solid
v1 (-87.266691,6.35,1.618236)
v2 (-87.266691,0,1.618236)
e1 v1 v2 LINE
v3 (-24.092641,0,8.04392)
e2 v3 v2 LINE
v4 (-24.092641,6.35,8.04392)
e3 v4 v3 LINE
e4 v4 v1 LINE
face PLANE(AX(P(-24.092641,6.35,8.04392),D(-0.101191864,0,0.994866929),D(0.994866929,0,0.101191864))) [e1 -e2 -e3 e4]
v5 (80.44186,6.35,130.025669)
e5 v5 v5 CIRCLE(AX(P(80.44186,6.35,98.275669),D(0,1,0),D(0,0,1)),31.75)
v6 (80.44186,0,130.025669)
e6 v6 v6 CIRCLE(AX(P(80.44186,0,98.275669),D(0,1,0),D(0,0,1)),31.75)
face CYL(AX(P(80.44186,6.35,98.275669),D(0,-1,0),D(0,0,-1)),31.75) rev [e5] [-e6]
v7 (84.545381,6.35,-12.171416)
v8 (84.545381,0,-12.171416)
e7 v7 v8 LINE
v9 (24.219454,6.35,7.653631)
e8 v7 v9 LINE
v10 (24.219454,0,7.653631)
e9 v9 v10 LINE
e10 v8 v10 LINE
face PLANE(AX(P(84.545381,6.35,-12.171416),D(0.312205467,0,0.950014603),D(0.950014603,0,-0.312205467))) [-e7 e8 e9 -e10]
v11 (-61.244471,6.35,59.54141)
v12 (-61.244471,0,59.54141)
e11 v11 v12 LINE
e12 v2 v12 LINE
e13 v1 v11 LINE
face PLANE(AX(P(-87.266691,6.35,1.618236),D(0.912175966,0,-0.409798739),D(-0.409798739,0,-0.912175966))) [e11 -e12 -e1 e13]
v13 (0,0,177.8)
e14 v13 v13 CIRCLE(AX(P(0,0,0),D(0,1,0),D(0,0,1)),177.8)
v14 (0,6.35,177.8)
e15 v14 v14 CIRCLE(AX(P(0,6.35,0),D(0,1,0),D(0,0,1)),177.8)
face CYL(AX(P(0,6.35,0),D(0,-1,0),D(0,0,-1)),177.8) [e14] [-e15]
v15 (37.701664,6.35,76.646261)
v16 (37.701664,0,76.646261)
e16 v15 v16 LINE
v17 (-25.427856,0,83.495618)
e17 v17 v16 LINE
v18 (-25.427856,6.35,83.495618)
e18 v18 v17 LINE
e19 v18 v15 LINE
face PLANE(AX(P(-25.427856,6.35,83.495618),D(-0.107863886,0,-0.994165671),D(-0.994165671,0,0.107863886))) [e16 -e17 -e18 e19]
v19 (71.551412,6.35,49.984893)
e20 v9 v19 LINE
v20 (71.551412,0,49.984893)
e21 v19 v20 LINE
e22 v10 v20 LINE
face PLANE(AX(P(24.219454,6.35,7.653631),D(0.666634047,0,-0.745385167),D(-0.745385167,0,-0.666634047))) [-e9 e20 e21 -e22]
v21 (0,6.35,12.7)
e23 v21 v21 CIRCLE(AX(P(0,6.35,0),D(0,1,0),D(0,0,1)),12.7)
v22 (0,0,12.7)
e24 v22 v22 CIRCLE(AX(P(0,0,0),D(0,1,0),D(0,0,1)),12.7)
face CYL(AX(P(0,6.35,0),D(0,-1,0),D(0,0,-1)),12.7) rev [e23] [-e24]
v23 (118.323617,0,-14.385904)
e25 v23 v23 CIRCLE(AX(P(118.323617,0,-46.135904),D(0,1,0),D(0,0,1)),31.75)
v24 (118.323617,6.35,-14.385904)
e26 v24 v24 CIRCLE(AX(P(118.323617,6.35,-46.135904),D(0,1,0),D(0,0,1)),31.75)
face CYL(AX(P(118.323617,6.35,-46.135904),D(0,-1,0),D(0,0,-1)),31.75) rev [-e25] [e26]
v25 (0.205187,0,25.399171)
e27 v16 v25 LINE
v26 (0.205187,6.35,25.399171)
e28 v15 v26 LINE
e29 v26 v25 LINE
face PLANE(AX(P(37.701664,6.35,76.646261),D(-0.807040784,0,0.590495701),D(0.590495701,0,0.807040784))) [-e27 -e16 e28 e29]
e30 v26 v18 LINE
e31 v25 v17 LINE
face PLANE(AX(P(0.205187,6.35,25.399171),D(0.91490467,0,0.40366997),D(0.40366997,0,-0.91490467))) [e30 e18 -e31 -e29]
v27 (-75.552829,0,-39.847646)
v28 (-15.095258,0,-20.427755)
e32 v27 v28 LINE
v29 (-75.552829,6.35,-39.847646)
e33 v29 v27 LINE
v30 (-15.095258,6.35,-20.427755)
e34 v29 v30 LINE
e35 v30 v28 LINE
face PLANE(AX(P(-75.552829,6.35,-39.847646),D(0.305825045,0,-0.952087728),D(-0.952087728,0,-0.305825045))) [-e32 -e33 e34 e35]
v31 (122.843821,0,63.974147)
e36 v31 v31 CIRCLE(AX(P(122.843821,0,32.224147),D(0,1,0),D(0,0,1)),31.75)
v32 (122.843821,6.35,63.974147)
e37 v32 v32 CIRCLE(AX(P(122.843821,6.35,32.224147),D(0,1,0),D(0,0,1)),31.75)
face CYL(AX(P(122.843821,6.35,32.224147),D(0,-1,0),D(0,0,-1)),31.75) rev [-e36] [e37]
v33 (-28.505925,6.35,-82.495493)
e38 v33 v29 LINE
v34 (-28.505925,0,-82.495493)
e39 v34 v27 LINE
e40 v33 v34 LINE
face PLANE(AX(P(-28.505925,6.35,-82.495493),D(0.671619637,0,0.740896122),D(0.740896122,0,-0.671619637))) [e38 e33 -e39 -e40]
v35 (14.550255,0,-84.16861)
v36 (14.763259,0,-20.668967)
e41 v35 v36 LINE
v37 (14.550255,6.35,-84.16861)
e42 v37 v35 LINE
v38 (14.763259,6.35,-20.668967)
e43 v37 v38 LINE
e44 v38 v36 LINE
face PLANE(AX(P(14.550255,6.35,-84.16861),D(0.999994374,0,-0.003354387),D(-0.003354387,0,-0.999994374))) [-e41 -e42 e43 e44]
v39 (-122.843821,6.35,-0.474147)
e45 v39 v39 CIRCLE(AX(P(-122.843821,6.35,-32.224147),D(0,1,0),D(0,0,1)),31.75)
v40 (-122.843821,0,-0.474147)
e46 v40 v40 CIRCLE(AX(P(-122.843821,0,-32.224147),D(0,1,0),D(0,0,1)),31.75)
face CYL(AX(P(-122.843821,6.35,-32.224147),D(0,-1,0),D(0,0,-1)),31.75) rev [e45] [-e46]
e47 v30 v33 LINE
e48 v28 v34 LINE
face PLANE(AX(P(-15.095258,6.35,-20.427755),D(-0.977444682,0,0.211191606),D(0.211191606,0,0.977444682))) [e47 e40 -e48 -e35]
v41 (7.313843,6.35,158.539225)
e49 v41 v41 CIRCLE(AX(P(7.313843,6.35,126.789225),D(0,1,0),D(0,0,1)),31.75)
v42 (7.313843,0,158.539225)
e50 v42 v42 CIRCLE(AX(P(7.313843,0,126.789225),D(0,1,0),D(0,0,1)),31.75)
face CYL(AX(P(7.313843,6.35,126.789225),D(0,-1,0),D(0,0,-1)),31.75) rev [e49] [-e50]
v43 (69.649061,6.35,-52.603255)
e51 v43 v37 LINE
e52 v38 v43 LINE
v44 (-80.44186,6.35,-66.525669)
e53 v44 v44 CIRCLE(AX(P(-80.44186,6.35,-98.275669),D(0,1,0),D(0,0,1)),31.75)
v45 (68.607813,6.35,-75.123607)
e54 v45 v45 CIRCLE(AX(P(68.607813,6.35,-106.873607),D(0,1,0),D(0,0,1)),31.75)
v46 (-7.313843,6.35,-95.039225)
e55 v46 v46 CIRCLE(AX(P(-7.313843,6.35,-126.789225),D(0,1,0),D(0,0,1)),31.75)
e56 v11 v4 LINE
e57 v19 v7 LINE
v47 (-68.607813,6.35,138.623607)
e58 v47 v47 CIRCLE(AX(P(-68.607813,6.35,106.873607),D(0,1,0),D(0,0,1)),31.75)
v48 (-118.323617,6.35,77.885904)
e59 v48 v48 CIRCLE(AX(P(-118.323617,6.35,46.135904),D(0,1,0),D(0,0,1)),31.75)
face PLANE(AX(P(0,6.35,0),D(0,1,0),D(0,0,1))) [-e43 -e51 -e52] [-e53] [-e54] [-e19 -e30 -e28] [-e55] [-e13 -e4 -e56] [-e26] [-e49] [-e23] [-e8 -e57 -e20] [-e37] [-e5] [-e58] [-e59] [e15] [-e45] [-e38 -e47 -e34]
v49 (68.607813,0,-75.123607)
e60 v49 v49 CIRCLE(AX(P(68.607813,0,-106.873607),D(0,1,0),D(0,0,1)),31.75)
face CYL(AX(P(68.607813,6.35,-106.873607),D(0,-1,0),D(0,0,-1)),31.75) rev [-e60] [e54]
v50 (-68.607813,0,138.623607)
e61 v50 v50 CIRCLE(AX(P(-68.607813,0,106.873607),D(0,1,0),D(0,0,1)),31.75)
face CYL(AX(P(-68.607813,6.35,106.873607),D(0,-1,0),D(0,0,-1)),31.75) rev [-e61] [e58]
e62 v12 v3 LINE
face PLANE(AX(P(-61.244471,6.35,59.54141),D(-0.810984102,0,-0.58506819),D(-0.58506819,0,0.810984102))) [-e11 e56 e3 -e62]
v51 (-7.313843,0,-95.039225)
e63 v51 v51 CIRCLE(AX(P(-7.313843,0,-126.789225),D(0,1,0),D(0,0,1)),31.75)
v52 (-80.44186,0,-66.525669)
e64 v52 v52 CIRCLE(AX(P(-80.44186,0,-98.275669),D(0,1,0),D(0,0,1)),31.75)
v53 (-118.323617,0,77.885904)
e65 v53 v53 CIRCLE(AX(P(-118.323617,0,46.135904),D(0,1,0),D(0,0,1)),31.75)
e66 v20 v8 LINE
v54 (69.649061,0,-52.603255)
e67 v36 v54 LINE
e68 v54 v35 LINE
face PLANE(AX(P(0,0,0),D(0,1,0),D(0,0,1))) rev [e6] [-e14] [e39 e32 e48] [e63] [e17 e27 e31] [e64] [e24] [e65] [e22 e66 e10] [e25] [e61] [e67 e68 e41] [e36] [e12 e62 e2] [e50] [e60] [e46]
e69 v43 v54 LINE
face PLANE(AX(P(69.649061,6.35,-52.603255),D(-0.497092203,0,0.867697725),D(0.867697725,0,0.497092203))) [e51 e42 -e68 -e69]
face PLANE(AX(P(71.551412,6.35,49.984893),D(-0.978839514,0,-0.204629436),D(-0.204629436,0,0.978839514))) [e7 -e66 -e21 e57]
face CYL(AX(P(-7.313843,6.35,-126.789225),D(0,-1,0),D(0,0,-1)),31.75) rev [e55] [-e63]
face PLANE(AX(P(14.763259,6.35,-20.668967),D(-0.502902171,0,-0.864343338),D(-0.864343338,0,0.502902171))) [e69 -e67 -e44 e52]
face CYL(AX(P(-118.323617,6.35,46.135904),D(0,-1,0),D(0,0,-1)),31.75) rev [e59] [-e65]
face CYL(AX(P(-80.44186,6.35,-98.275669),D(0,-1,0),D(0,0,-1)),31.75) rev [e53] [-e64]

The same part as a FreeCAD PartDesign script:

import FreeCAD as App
import Part
import Sketcher

V = App.Vector
Q = App.Units.Quantity


def add_polygon(sketch, points):
    """Adds a closed chain of lines whose ends are joined by coincident constraints."""
    first, n = sketch.GeometryCount, len(points)
    for a, b in zip(points, points[1:] + points[:1]):
        sketch.addGeometry(Part.LineSegment(App.Vector(*a, 0), App.Vector(*b, 0)), False)
    for i in range(n):
        sketch.addConstraint(Sketcher.Constraint("Coincident", first + i, 2, first + (i + 1) % n, 1))

doc = App.newDocument("Part")
body = doc.addObject("PartDesign::Body", "Body")

# Sketch on XZ plane
sketch1 = doc.addObject("Sketcher::SketchObject", "Sketch")
body.addObject(sketch1)
sketch1.AttachmentSupport = (doc.XZ_Plane, [""])
sketch1.MapMode = "FlatFace"
sketch1.addGeometry(Part.Circle(V(0, 0, 0), V(0, 0, 1), 178), False)  # 0
sketch1.addGeometry(Part.Circle(V(-80, -98, 0), V(0, 0, 1), 32), False)  # 1
sketch1.addGeometry(Part.Circle(V(-123, -32, 0), V(0, 0, 1), 32), False)  # 2
sketch1.addGeometry(Part.Circle(V(-7, -127, 0), V(0, 0, 1), 32), False)  # 3
add_polygon(sketch1, [(-15, -20), (-76, -40), (-29, -82)])  # lines 4-6
sketch1.addGeometry(Part.Circle(V(-118, 46, 0), V(0, 0, 1), 32), False)  # 7
add_polygon(sketch1, [(-24, 8), (-61, 60), (-87, 2)])  # lines 8-10
sketch1.addGeometry(Part.Circle(V(-69, 107, 0), V(0, 0, 1), 32), False)  # 11
sketch1.addGeometry(Part.Circle(V(69, -107, 0), V(0, 0, 1), 32), False)  # 12
sketch1.addGeometry(Part.Circle(V(0, 0, 0), V(0, 0, 1), 13), False)  # 13
add_polygon(sketch1, [(15, -21), (15, -84), (70, -53)])  # lines 14-16
sketch1.addGeometry(Part.Circle(V(118, -46, 0), V(0, 0, 1), 32), False)  # 17
add_polygon(sketch1, [(0, 25), (38, 77), (-25, 83)])  # lines 18-20
add_polygon(sketch1, [(24, 8), (85, -12), (72, 50)])  # lines 21-23
sketch1.addGeometry(Part.Circle(V(7, 127, 0), V(0, 0, 1), 32), False)  # 24
sketch1.addGeometry(Part.Circle(V(123, 32, 0), V(0, 0, 1), 32), False)  # 25
sketch1.addGeometry(Part.Circle(V(80, 98, 0), V(0, 0, 1), 32), False)  # 26
sketch1.addConstraint([
    Sketcher.Constraint("Coincident", 0, 3, -1, 1),
    Sketcher.Constraint("Coincident", 13, 3, -1, 1),
    Sketcher.Constraint("Equal", 1, 2),
    Sketcher.Constraint("Equal", 2, 3),
    Sketcher.Constraint("Equal", 3, 7),
    Sketcher.Constraint("Equal", 7, 11),
    Sketcher.Constraint("Equal", 11, 12),
    Sketcher.Constraint("Equal", 12, 17),
    Sketcher.Constraint("Equal", 17, 24),
    Sketcher.Constraint("Equal", 24, 25),
    Sketcher.Constraint("Equal", 25, 26),
    Sketcher.Constraint("Symmetric", 11, 3, 12, 3, -1, 1),
    Sketcher.Constraint("Symmetric", 7, 3, 17, 3, -1, 1),
    Sketcher.Constraint("Symmetric", 3, 3, 24, 3, -1, 1),
    Sketcher.Constraint("Symmetric", 2, 3, 25, 3, -1, 1),
    Sketcher.Constraint("Symmetric", 1, 3, 26, 3, -1, 1),
    Sketcher.Constraint("Equal", 4, 5),
    Sketcher.Constraint("Equal", 5, 6),
    Sketcher.Constraint("Equal", 6, 8),
    Sketcher.Constraint("Equal", 8, 9),
    Sketcher.Constraint("Equal", 9, 10),
    Sketcher.Constraint("Equal", 10, 14),
    Sketcher.Constraint("Equal", 14, 15),
    Sketcher.Constraint("Equal", 15, 16),
    Sketcher.Constraint("Equal", 16, 18),
    Sketcher.Constraint("Equal", 18, 19),
    Sketcher.Constraint("Equal", 19, 20),
    Sketcher.Constraint("Equal", 20, 21),
    Sketcher.Constraint("Equal", 21, 22),
    Sketcher.Constraint("Equal", 22, 23),
    Sketcher.Constraint("Diameter", 0, Q("14 in")),
    Sketcher.Constraint("Diameter", 13, Q("1 in")),
    Sketcher.Constraint("Diameter", 1, Q("2.5 in")),
    Sketcher.Constraint("Distance", 4, Q("2.5 in")),
    Sketcher.Constraint("DistanceY", 4, 2, 2, 3, Q("7.623499 mm")),
    Sketcher.Constraint("DistanceX", 3, 3, 14, 2, Q("21.864098 mm")),
    Sketcher.Constraint("DistanceX", 10, 2, 16, 2, Q("38.8559 mm")),
    Sketcher.Constraint("DistanceX", 19, 2, 24, 3, Q("32.741699 mm")),
    Sketcher.Constraint("DistanceY", 16, 2, 23, 2, Q("28.322598 mm")),
    Sketcher.Constraint("DistanceX", 1, 3, -1, 1, Q("80.44186 mm")),
    Sketcher.Constraint("DistanceY", 1, 3, -1, 1, Q("98.275669 mm")),
    Sketcher.Constraint("DistanceX", 2, 3, -1, 1, Q("122.843821 mm")),
    Sketcher.Constraint("DistanceX", 4, 2, -1, 1, Q("75.552829 mm")),
    Sketcher.Constraint("DistanceX", 8, 2, -1, 1, Q("61.244471 mm")),
    Sketcher.Constraint("DistanceY", -1, 1, 8, 2, Q("59.54141 mm")),
    Sketcher.Constraint("DistanceX", 9, 2, -1, 1, Q("87.266691 mm")),
    Sketcher.Constraint("DistanceY", 14, 2, -1, 1, Q("84.16861 mm")),
    Sketcher.Constraint("DistanceX", -1, 1, 15, 2, Q("69.649061 mm")),
    Sketcher.Constraint("DistanceY", -1, 1, 18, 2, Q("76.646261 mm")),
    Sketcher.Constraint("DistanceY", -1, 1, 20, 2, Q("25.399171 mm")),
    Sketcher.Constraint("DistanceX", -1, 1, 21, 2, Q("84.545381 mm")),
    Sketcher.Constraint("DistanceX", -1, 1, 22, 2, Q("71.551412 mm")),
    Sketcher.Constraint("DistanceY", 1, 3, 2, 3, Q("66.051522 mm")),
    Sketcher.Constraint("DistanceY", 3, 3, 2, 3, Q("94.565078 mm")),
    Sketcher.Constraint("DistanceY", 2, 3, 7, 3, Q("78.360051 mm")),
    Sketcher.Constraint("DistanceX", 11, 3, 3, 3, Q("61.29397 mm")),
    Sketcher.Constraint("DistanceY", 3, 3, 12, 3, Q("19.915618 mm")),
    Sketcher.Constraint("DistanceX", 7, 3, 12, 3, Q("186.931431 mm")),
    Sketcher.Constraint("DistanceX", 5, 2, 3, 3, Q("21.192082 mm")),
])
pad1 = doc.addObject("PartDesign::Pad", "Pad")
body.addObject(pad1)
pad1.Profile = sketch1
pad1.Length = Q("0.25 in")
pad1.Reversed = True

doc.recompute()
